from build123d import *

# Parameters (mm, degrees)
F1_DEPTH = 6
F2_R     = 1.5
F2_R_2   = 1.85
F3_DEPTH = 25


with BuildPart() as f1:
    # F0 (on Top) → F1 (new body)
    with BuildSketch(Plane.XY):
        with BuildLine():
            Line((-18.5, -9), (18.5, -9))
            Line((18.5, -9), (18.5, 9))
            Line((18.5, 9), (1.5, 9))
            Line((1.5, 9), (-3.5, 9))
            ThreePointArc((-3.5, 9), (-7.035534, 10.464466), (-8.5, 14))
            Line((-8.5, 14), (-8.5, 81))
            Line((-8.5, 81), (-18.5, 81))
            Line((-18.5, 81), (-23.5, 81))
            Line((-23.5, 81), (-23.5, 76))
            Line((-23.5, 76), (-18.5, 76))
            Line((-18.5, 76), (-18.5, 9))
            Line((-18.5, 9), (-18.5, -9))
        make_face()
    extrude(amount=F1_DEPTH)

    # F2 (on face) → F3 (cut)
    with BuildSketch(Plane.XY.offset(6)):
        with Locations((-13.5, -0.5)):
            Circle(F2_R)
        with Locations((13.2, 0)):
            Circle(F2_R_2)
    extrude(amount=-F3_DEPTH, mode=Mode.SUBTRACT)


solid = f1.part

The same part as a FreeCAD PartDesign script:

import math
import FreeCAD as App
import Part
import Sketcher
from FreeCAD import Vector

doc = App.newDocument("Part")
body = doc.addObject("PartDesign::Body", "Body")

sketch1 = body.newObject("Sketcher::SketchObject", "Sketch")
sketch1.AttachmentSupport = (doc.getObject("XY_Plane"), [""])
sketch1.MapMode = "FlatFace"
sketch1.addGeometry(Part.LineSegment(Vector(-18.5, -9, 0), Vector(18.5, -9, 0)), False)
sketch1.addGeometry(Part.LineSegment(Vector(18.5, -9, 0), Vector(18.5, 9, 0)), False)
sketch1.addGeometry(Part.LineSegment(Vector(18.5, 9, 0), Vector(-3.5, 9, 0)), False)
sketch1.addGeometry(Part.ArcOfCircle(Part.Circle(Vector(-3.5, 14, 0), Vector(0, 0, 1), 5), math.radians(179.999996), math.radians(270.000004)), False)
sketch1.addGeometry(Part.LineSegment(Vector(-8.5, 14, 0), Vector(-8.5, 81, 0)), False)
sketch1.addGeometry(Part.LineSegment(Vector(-8.5, 81, 0), Vector(-23.5, 81, 0)), False)
sketch1.addGeometry(Part.LineSegment(Vector(-23.5, 81, 0), Vector(-23.5, 76, 0)), False)
sketch1.addGeometry(Part.LineSegment(Vector(-23.5, 76, 0), Vector(-18.5, 76, 0)), False)
sketch1.addGeometry(Part.LineSegment(Vector(-18.5, 76, 0), Vector(-18.5, -9, 0)), False)
sketch1.addConstraint(Sketcher.Constraint("Coincident", 0, 2, 1, 1))
sketch1.addConstraint(Sketcher.Constraint("Coincident", 1, 2, 2, 1))
sketch1.addConstraint(Sketcher.Constraint("Tangent", 2, 2, 3, 2))
sketch1.addConstraint(Sketcher.Constraint("Tangent", 3, 1, 4, 1))
sketch1.addConstraint(Sketcher.Constraint("Coincident", 4, 2, 5, 1))
sketch1.addConstraint(Sketcher.Constraint("Coincident", 5, 2, 6, 1))
sketch1.addConstraint(Sketcher.Constraint("Coincident", 6, 2, 7, 1))
sketch1.addConstraint(Sketcher.Constraint("Coincident", 7, 2, 8, 1))
sketch1.addConstraint(Sketcher.Constraint("Coincident", 8, 2, 0, 1))
sketch1.addConstraint(Sketcher.Constraint("Horizontal", 0))
sketch1.addConstraint(Sketcher.Constraint("Vertical", 1))
sketch1.addConstraint(Sketcher.Constraint("Horizontal", 2))
sketch1.addConstraint(Sketcher.Constraint("Vertical", 4))
sketch1.addConstraint(Sketcher.Constraint("Horizontal", 5))
sketch1.addConstraint(Sketcher.Constraint("Vertical", 6))
sketch1.addConstraint(Sketcher.Constraint("Horizontal", 7))
sketch1.addConstraint(Sketcher.Constraint("Vertical", 8))
sketch1.addConstraint(Sketcher.Constraint("Symmetric", 1, 2, 8, 2, -1, 1))
sketch1.addConstraint(Sketcher.Constraint("Equal", 7, 6))
sketch1.addConstraint(Sketcher.Constraint("Radius", 3, 5.0))
sketch1.addConstraint(Sketcher.Constraint("DistanceX", 0, 1, 0, 2, 37.0))
sketch1.addConstraint(Sketcher.Constraint("DistanceX", 2, 2, 2, 1, 22.0))
sketch1.addConstraint(Sketcher.Constraint("DistanceX", 5, 2, 5, 1, 15.0))
sketch1.addConstraint(Sketcher.Constraint("DistanceY", 1, 1, 1, 2, 18.0))
sketch1.addConstraint(Sketcher.Constraint("DistanceY", 4, 1, 4, 2, 67.0))
pad1 = body.newObject("PartDesign::Pad", "Pad")
pad1.Profile = sketch1
pad1.Length = 6

sketch2 = body.newObject("Sketcher::SketchObject", "Sketch001")
sketch2.AttachmentSupport = (doc.getObject("XY_Plane"), [""])
sketch2.MapMode = "FlatFace"
sketch2.AttachmentOffset = App.Placement(Vector(0, 0, 6), App.Rotation())
sketch2.addGeometry(Part.Circle(Vector(-13.5, -0.5, 0), Vector(0, 0, 1), 1.5), False)
sketch2.addGeometry(Part.Circle(Vector(13.2, 0, 0), Vector(0, 0, 1), 1.85), False)
sketch2.addConstraint(Sketcher.Constraint("PointOnObject", 1, 3, -1))
sketch2.addConstraint(Sketcher.Constraint("Diameter", 0, 3.0))
sketch2.addConstraint(Sketcher.Constraint("Diameter", 1, 3.7))
sketch2.addConstraint(Sketcher.Constraint("DistanceX", 0, 3, -1, 1, 13.5))
sketch2.addConstraint(Sketcher.Constraint("DistanceY", 0, 3, -1, 1, 0.5))
sketch2.addConstraint(Sketcher.Constraint("DistanceX", -1, 1, 1, 3, 13.2))
pocket1 = body.newObject("PartDesign::Pocket", "Pocket")
pocket1.Profile = sketch2
pocket1.Length = 25

doc.recompute()
